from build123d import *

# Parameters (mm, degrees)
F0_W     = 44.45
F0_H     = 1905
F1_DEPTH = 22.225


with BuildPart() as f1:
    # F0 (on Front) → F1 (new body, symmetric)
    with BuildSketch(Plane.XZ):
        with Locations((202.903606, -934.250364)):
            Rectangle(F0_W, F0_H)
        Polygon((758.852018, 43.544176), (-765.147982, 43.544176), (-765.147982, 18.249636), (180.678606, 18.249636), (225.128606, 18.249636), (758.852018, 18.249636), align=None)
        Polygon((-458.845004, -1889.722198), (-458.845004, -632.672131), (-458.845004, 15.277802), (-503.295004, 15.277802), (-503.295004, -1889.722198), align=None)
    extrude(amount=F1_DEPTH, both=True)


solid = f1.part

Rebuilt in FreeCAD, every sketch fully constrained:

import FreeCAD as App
import Part
import Sketcher
from FreeCAD import Vector
Q = App.Units.Quantity


def add_polygon(sketch, points):
    """Adds a closed chain of lines whose ends are joined by coincident constraints."""
    first, n = sketch.GeometryCount, len(points)
    for a, b in zip(points, points[1:] + points[:1]):
        sketch.addGeometry(Part.LineSegment(App.Vector(*a, 0), App.Vector(*b, 0)), False)
    for i in range(n):
        sketch.addConstraint(Sketcher.Constraint("Coincident", first + i, 2, first + (i + 1) % n, 1))

doc = App.newDocument("Part")
body = doc.addObject("PartDesign::Body", "Body")
body.AllowCompound = True

# Sketch on XZ plane
sketch1 = body.newObject("Sketcher::SketchObject", "Sketch")
sketch1.AttachmentSupport = (doc.getObject("XZ_Plane"), [""])
sketch1.MapMode = "FlatFace"
add_polygon(sketch1, [(181, 18), (181, -1887), (225, -1887), (225, 18), (759, 18), (759, 44), (-765, 44), (-765, 18)])  # lines 0-7
add_polygon(sketch1, [(-459, -1890), (-459, 15), (-503, 15), (-503, -1890)])  # lines 8-11
sketch1.addConstraint([
    Sketcher.Constraint("Vertical", 0),
    Sketcher.Constraint("Horizontal", 1),
    Sketcher.Constraint("Vertical", 2),
    Sketcher.Constraint("Horizontal", 3),
    Sketcher.Constraint("Vertical", 4),
    Sketcher.Constraint("Horizontal", 5),
    Sketcher.Constraint("Vertical", 6),
    Sketcher.Constraint("Horizontal", 7),
    Sketcher.Constraint("Vertical", 8),
    Sketcher.Constraint("Horizontal", 9),
    Sketcher.Constraint("Vertical", 10),
    Sketcher.Constraint("Horizontal", 11),
    Sketcher.Constraint("Horizontal", 3, 2, 6, 2),
    Sketcher.Constraint("Equal", 1, 9),
    Sketcher.Constraint("Equal", 2, 8),
    Sketcher.Constraint("DistanceX", 5, 2, 5, 1, Q("60 in")),
    Sketcher.Constraint("DistanceY", 0, 2, 0, 1, Q("75 in")),
    Sketcher.Constraint("DistanceX", 1, 1, 1, 2, Q("1.75 in")),
    Sketcher.Constraint("DistanceY", 4, 1, 4, 2, 25.29454),
    Sketcher.Constraint("DistanceY", 10, 2, -1, 1, 1889.722198),
    Sketcher.Constraint("DistanceX", 3, 1, 3, 2, 533.723412),
    Sketcher.Constraint("DistanceX", -1, 1, 3, 2, 758.852018),
    Sketcher.Constraint("DistanceX", 8, 2, 7, 2, 639.52361),
    Sketcher.Constraint("DistanceY", 0, 2, -1, 1, 1886.750364),
])
pad1 = body.newObject("PartDesign::Pad", "Pad")
pad1.Profile = sketch1
pad1.Length = Q("1.75 in")
pad1.Midplane = True

doc.recompute()
